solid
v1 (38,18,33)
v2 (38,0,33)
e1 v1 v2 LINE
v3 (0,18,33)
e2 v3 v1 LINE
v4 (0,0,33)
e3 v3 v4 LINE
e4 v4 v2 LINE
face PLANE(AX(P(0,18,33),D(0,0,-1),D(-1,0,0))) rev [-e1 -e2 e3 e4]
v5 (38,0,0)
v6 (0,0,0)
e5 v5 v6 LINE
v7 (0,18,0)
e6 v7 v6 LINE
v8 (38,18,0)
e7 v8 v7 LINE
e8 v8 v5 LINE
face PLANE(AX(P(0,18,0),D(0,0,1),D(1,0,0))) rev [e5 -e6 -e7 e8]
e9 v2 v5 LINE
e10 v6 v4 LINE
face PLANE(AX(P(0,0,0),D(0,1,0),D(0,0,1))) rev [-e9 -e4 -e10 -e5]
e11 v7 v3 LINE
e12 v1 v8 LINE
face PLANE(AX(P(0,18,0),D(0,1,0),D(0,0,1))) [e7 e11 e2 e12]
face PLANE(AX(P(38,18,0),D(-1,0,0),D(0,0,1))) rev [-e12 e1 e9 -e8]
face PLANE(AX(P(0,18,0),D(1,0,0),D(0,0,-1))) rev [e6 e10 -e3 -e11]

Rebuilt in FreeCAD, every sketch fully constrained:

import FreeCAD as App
import Part
import Sketcher

V = App.Vector

doc = App.newDocument("Part")
body = doc.addObject("PartDesign::Body", "Body")

# Sketch on XZ plane
sketch1 = body.newObject("Sketcher::SketchObject", "Sketch")
sketch1.AttachmentSupport = (doc.getObject("XZ_Plane"), [""])
sketch1.MapMode = "FlatFace"
sketch1.addGeometry(Part.LineSegment(V(0, 0, 0), V(0, 33, 0)), False)
sketch1.addGeometry(Part.LineSegment(V(0, 33, 0), V(38, 33, 0)), False)
sketch1.addGeometry(Part.LineSegment(V(38, 33, 0), V(38, 0, 0)), False)
sketch1.addGeometry(Part.LineSegment(V(38, 0, 0), V(0, 0, 0)), False)
sketch1.addConstraint(Sketcher.Constraint("Coincident", 0, 2, 1, 1))
sketch1.addConstraint(Sketcher.Constraint("Coincident", 1, 2, 2, 1))
sketch1.addConstraint(Sketcher.Constraint("Coincident", 2, 2, 3, 1))
sketch1.addConstraint(Sketcher.Constraint("Coincident", 3, 2, 0, 1))
sketch1.addConstraint(Sketcher.Constraint("Vertical", 0))
sketch1.addConstraint(Sketcher.Constraint("Horizontal", 1))
sketch1.addConstraint(Sketcher.Constraint("Vertical", 2))
sketch1.addConstraint(Sketcher.Constraint("Horizontal", 3))
sketch1.addConstraint(Sketcher.Constraint("Coincident", 3, 2, -1, 1))
sketch1.addConstraint(Sketcher.Constraint("DistanceX", 1, 1, 1, 2, 38.0))
sketch1.addConstraint(Sketcher.Constraint("DistanceY", 0, 1, 0, 2, 33.0))
pad1 = body.newObject("PartDesign::Pad", "Pad")
pad1.Profile = sketch1
pad1.Length = 18
pad1.Reversed = True

doc.recompute()
